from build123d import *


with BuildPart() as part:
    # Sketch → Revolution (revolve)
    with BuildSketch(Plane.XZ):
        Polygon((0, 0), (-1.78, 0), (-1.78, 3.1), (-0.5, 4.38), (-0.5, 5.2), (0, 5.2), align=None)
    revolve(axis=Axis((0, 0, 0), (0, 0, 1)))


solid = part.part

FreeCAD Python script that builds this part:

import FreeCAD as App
import Part
import Sketcher

V = App.Vector
Q = App.Units.Quantity

doc = App.newDocument("Part")
body = doc.addObject("PartDesign::Body", "Body")

sketch1 = body.newObject("Sketcher::SketchObject", "Sketch")
sketch1.AttachmentSupport = (doc.getObject("XZ_Plane"), [""])
sketch1.MapMode = "FlatFace"
sketch1.addGeometry([
    Part.LineSegment(V(-1.8, 0, 0), V(0, 0, 0)),
    Part.LineSegment(V(0, 0, 0), V(0, 5.2, 0)),
    Part.LineSegment(V(0, 5.2, 0), V(-0.5, 5.2, 0)),
    Part.LineSegment(V(-0.5, 5.2, 0), V(-0.5, 4.4, 0)),
    Part.LineSegment(V(-0.5, 4.4, 0), V(-1.8, 3.1, 0)),
    Part.LineSegment(V(-1.8, 3.1, 0), V(-1.8, 0, 0)),
], False)
sketch1.addConstraint([
    Sketcher.Constraint("Coincident", 0, 2, 1, 1),
    Sketcher.Constraint("Coincident", 1, 2, 2, 1),
    Sketcher.Constraint("Coincident", 2, 2, 3, 1),
    Sketcher.Constraint("Coincident", 3, 2, 4, 1),
    Sketcher.Constraint("Coincident", 4, 2, 5, 1),
    Sketcher.Constraint("Coincident", 5, 2, 0, 1),
    Sketcher.Constraint("Horizontal", 0),
    Sketcher.Constraint("Vertical", 1),
    Sketcher.Constraint("Horizontal", 2),
    Sketcher.Constraint("Vertical", 3),
    Sketcher.Constraint("Vertical", 5),
    Sketcher.Constraint("Coincident", 0, 2, -1, 1),
    Sketcher.Constraint("Angle", 4, Q("-135 deg")),
    Sketcher.Constraint("DistanceX", 2, 2, 2, 1, 0.5),
    Sketcher.Constraint("DistanceY", 1, 1, 1, 2, 5.2),
    Sketcher.Constraint("DistanceY", 5, 2, 5, 1, 3.1),
    Sketcher.Constraint("DistanceX", 0, 1, 0, 2, 1.78),
])
revolution = body.newObject("PartDesign::Revolution", "Revolution")
revolution.Profile = sketch1
revolution.ReferenceAxis = (sketch1, ["V_Axis"])
revolution.Angle = 360

doc.recompute()
